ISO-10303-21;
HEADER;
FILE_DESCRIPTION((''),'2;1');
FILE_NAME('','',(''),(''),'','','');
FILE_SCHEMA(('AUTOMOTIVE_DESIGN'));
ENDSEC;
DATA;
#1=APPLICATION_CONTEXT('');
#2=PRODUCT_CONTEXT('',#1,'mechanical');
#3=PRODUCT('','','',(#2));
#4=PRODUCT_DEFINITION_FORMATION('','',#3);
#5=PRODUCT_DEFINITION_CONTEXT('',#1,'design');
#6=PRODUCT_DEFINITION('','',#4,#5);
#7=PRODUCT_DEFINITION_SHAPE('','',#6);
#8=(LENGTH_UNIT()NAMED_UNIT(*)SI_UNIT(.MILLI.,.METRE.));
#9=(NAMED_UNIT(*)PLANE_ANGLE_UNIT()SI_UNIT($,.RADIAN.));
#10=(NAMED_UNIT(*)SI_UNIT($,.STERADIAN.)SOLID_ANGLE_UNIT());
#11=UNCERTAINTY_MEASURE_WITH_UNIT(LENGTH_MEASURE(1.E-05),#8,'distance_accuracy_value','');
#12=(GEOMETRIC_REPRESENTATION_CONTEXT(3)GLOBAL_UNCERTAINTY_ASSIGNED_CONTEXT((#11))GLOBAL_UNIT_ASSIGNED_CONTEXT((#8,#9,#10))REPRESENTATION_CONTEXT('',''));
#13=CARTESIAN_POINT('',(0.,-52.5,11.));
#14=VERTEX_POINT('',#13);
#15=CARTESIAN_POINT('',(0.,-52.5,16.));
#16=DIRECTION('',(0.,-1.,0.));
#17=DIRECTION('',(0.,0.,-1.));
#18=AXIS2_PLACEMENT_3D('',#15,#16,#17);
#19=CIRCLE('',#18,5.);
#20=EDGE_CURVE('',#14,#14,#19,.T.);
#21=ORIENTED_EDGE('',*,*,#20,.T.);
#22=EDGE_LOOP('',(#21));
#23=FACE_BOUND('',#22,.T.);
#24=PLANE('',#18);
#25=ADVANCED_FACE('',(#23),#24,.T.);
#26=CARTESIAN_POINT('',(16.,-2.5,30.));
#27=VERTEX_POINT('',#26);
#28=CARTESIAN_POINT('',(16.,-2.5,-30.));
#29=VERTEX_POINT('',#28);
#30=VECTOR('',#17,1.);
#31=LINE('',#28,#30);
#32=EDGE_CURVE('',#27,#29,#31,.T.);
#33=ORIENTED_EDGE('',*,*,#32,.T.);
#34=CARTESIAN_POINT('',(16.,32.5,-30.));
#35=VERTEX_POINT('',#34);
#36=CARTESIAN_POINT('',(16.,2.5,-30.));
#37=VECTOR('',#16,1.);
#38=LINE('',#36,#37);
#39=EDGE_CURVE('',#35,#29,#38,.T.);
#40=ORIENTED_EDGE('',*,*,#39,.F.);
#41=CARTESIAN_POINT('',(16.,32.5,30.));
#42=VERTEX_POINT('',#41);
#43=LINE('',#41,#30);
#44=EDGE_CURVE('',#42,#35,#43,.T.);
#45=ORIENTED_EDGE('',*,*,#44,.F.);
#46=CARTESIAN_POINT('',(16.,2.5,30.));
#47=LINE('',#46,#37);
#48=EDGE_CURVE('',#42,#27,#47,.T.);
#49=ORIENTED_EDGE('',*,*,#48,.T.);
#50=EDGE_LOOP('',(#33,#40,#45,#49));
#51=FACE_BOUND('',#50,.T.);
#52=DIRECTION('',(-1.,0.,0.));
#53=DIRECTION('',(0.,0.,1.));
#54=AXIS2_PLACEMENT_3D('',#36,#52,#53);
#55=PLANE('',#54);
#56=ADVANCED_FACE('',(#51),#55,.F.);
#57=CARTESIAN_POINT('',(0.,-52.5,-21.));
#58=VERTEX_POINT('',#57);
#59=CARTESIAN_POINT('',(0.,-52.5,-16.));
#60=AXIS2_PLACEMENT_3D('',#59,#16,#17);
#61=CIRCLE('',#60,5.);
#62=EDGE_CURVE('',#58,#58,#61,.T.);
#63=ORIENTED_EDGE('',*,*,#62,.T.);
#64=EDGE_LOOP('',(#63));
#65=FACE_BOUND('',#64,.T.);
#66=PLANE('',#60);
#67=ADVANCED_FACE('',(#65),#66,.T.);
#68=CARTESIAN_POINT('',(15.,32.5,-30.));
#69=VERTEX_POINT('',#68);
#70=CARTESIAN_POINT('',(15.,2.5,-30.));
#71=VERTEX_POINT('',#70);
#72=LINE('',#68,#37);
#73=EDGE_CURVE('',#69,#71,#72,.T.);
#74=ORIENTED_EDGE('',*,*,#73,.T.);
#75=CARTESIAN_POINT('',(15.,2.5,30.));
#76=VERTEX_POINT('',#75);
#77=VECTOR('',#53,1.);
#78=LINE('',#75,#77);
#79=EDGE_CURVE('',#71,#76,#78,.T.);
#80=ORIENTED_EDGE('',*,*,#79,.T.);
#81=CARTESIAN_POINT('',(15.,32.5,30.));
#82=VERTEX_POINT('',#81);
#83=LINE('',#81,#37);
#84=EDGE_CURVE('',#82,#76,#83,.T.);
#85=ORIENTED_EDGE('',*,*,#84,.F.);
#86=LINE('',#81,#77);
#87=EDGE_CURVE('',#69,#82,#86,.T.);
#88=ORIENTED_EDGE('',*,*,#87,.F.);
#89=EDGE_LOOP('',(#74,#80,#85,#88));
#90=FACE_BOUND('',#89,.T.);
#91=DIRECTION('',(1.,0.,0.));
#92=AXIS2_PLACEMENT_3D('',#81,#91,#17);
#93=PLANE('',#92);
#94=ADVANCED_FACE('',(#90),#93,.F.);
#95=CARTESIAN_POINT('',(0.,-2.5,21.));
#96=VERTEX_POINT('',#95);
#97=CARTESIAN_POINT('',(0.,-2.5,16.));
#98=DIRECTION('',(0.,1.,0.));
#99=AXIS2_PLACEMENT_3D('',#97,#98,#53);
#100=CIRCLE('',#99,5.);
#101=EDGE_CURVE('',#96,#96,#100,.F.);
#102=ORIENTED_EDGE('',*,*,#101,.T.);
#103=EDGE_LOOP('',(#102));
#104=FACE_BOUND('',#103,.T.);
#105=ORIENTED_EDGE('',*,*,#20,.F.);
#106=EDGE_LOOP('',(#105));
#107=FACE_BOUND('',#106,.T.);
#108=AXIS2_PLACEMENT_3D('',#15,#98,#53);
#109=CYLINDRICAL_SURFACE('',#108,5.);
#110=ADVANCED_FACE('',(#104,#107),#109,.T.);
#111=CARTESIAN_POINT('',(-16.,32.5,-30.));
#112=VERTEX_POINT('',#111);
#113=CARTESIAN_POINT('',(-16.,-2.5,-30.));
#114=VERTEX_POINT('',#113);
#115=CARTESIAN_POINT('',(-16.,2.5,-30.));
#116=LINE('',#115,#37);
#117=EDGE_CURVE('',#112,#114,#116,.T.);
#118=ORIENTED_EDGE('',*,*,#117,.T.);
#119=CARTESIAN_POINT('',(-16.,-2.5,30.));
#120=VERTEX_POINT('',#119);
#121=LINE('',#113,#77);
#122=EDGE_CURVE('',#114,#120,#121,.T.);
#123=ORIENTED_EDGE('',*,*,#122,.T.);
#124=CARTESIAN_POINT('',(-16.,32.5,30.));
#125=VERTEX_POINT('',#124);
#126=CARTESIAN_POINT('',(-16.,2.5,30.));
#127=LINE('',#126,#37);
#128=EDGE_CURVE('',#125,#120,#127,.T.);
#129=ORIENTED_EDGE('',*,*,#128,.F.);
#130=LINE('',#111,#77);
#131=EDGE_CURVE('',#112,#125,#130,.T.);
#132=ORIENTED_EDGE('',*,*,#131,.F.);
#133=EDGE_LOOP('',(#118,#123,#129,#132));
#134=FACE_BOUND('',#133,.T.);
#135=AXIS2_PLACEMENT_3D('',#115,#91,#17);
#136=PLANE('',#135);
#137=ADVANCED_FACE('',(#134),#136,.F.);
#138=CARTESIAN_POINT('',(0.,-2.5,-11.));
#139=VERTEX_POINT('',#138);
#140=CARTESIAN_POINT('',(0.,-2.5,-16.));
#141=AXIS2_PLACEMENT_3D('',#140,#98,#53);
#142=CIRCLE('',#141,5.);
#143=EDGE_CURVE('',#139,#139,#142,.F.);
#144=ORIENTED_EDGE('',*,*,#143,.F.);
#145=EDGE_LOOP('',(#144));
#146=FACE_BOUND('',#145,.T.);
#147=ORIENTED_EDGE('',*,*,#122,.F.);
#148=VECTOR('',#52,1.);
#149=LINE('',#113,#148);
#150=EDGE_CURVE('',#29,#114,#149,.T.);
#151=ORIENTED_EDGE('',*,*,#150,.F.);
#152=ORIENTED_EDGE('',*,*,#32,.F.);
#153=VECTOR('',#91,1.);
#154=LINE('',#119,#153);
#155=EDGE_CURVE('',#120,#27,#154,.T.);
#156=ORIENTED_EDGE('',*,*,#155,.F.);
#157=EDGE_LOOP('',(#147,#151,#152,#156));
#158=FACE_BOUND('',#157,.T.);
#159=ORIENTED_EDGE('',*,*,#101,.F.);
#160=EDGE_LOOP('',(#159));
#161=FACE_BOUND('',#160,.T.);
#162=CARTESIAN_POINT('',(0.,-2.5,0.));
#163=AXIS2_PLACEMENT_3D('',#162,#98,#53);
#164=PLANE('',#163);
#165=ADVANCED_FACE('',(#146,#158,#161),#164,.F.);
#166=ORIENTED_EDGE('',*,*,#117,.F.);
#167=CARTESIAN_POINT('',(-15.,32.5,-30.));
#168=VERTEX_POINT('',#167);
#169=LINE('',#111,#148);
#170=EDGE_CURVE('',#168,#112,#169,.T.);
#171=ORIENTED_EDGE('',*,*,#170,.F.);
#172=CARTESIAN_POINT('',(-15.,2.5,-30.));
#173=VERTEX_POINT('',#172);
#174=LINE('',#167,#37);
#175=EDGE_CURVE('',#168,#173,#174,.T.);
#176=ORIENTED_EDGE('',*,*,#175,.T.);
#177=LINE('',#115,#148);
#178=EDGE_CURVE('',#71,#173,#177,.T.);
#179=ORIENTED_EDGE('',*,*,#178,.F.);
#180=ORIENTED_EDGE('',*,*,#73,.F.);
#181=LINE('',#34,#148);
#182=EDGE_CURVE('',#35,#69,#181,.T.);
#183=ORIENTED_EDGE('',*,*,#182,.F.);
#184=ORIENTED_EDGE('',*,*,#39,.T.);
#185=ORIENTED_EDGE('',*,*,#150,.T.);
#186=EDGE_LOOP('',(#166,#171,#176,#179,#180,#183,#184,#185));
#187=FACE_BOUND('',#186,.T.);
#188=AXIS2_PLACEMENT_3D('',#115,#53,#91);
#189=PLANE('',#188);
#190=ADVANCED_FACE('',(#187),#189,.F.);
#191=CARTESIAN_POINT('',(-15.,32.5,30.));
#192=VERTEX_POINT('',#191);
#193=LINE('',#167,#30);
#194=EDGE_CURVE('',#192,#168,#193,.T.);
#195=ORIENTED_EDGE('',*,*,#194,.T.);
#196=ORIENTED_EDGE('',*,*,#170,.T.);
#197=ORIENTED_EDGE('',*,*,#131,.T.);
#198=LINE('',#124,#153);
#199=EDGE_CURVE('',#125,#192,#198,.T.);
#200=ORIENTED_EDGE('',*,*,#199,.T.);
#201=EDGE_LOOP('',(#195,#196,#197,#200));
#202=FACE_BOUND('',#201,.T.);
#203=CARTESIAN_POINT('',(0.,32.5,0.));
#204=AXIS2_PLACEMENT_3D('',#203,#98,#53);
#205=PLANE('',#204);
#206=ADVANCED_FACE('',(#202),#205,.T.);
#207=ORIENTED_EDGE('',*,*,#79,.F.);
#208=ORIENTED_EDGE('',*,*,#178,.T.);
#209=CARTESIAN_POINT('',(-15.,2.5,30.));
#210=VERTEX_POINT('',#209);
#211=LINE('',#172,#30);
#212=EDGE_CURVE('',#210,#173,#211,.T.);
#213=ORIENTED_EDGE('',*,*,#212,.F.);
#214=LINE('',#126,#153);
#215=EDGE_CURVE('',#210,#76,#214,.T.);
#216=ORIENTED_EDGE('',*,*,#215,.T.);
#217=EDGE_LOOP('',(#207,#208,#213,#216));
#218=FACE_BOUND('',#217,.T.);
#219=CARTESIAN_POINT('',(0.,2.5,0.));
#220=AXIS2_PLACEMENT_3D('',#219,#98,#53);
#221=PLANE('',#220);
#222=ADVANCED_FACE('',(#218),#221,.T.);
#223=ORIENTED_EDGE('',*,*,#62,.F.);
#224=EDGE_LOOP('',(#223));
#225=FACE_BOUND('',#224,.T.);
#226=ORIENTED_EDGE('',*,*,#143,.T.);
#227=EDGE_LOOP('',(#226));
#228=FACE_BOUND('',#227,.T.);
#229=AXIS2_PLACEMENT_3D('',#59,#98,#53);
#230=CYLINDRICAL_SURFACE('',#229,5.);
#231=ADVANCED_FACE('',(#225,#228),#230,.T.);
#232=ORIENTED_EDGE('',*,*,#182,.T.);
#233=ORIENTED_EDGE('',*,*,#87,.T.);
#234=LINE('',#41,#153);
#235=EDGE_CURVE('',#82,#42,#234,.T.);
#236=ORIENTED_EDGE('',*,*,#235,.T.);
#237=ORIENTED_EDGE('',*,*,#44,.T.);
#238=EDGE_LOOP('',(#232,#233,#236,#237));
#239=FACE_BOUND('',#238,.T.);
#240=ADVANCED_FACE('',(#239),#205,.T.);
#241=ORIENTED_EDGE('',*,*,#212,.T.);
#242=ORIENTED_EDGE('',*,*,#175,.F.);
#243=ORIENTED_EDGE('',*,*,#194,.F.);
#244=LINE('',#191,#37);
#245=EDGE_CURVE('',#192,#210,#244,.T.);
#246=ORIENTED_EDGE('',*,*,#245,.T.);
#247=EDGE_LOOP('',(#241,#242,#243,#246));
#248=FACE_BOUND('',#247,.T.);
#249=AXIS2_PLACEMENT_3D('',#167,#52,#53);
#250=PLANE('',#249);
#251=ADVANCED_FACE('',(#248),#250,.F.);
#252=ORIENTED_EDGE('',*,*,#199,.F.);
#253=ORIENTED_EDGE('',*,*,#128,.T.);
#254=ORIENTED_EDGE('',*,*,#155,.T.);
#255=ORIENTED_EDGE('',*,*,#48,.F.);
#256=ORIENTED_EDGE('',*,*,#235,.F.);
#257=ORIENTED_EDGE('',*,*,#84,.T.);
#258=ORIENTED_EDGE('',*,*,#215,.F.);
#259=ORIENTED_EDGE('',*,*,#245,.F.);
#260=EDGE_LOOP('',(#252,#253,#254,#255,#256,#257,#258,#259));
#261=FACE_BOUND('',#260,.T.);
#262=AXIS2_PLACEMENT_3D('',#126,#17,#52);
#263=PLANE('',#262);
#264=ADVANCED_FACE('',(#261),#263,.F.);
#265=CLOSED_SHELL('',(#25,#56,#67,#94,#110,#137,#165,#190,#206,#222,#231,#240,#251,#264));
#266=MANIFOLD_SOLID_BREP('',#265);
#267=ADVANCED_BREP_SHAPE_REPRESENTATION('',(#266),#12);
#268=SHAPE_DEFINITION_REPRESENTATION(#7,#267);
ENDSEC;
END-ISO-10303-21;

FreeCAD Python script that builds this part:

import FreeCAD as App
import Part
import Sketcher

V = App.Vector

doc = App.newDocument("Part")
body = doc.addObject("PartDesign::Body", "Body")

# Sketch on XZ plane
sketch1 = body.newObject("Sketcher::SketchObject", "Sketch")
sketch1.AttachmentSupport = (doc.getObject("XZ_Plane"), [""])
sketch1.MapMode = "FlatFace"
sketch1.addGeometry([
    Part.LineSegment(V(-16, -30, 0), V(-16, 30, 0)),
    Part.LineSegment(V(-16, 30, 0), V(16, 30, 0)),
    Part.LineSegment(V(16, 30, 0), V(16, -30, 0)),
    Part.LineSegment(V(16, -30, 0), V(-16, -30, 0)),
], False)
sketch1.addConstraint([
    Sketcher.Constraint("Coincident", 0, 2, 1, 1),
    Sketcher.Constraint("Coincident", 1, 2, 2, 1),
    Sketcher.Constraint("Coincident", 2, 2, 3, 1),
    Sketcher.Constraint("Coincident", 3, 2, 0, 1),
    Sketcher.Constraint("Vertical", 0),
    Sketcher.Constraint("Horizontal", 1),
    Sketcher.Constraint("Vertical", 2),
    Sketcher.Constraint("Horizontal", 3),
    Sketcher.Constraint("Symmetric", 0, 2, 2, 2, -1, 1),
    Sketcher.Constraint("DistanceX", 1, 1, 1, 2, 32.0),
    Sketcher.Constraint("DistanceY", 0, 1, 0, 2, 60.0),
])
pad1 = body.newObject("PartDesign::Pad", "Pad")
pad1.Profile = sketch1
pad1.Length = 5
pad1.Midplane = True

# Sketch on XZ plane
sketch2 = body.newObject("Sketcher::SketchObject", "Sketch001")
sketch2.AttachmentSupport = (doc.getObject("XZ_Plane"), [""])
sketch2.MapMode = "FlatFace"
sketch2.AttachmentOffset = App.Placement(V(0, 0, 2.5), App.Rotation())
sketch2.addGeometry([
    Part.Circle(V(0, 16, 0), V(0, 0, 1), 5),
    Part.Circle(V(0, -16, 0), V(0, 0, 1), 5),
], False)
sketch2.addConstraint([
    Sketcher.Constraint("Equal", 0, 1),
    Sketcher.Constraint("Symmetric", 0, 3, 1, 3, -1, 1),
    Sketcher.Constraint("PointOnObject", 0, 3, -2),
    Sketcher.Constraint("Diameter", 0, 10.0),
    Sketcher.Constraint("DistanceY", -1, 1, 0, 3, 16.0),
])
pad2 = body.newObject("PartDesign::Pad", "Pad001")
pad2.Profile = sketch2
pad2.Length = 50

# Sketch on XZ plane
sketch3 = body.newObject("Sketcher::SketchObject", "Sketch002")
sketch3.AttachmentSupport = (doc.getObject("XZ_Plane"), [""])
sketch3.MapMode = "FlatFace"
sketch3.AttachmentOffset = App.Placement(V(0, 0, -2.5), App.Rotation())
sketch3.addGeometry([
    Part.LineSegment(V(-16, -30, 0), V(-16, 30, 0)),  # 0
    Part.LineSegment(V(-16, 30, 0), V(-15, 30, 0)),  # 1
    Part.LineSegment(V(-15, 30, 0), V(-15, -30, 0)),  # 2
    Part.LineSegment(V(-15, -30, 0), V(-16, -30, 0)),  # 3
    Part.LineSegment(V(15, -30, 0), V(15, 30, 0)),  # 4
    Part.LineSegment(V(15, 30, 0), V(16, 30, 0)),  # 5
    Part.LineSegment(V(16, 30, 0), V(16, -30, 0)),  # 6
    Part.LineSegment(V(16, -30, 0), V(15, -30, 0)),  # 7
], False)
sketch3.addConstraint([
    Sketcher.Constraint("Coincident", 0, 2, 1, 1),
    Sketcher.Constraint("Coincident", 1, 2, 2, 1),
    Sketcher.Constraint("Coincident", 2, 2, 3, 1),
    Sketcher.Constraint("Coincident", 3, 2, 0, 1),
    Sketcher.Constraint("Coincident", 4, 2, 5, 1),
    Sketcher.Constraint("Coincident", 5, 2, 6, 1),
    Sketcher.Constraint("Coincident", 6, 2, 7, 1),
    Sketcher.Constraint("Coincident", 7, 2, 4, 1),
    Sketcher.Constraint("Vertical", 0),
    Sketcher.Constraint("Horizontal", 1),
    Sketcher.Constraint("Vertical", 2),
    Sketcher.Constraint("Horizontal", 3),
    Sketcher.Constraint("Vertical", 4),
    Sketcher.Constraint("Horizontal", 5),
    Sketcher.Constraint("Vertical", 6),
    Sketcher.Constraint("Horizontal", 7),
    Sketcher.Constraint("Symmetric", 2, 2, 4, 2, -1, 1),
    Sketcher.Constraint("Symmetric", 0, 2, 6, 2, -1, 1),
    Sketcher.Constraint("Horizontal", 1, 2, 4, 2),
    Sketcher.Constraint("DistanceX", 1, 1, 1, 2, 1.0),
    Sketcher.Constraint("DistanceY", 0, 1, 0, 2, 60.0),
    Sketcher.Constraint("DistanceX", 0, 2, -1, 1, 16.0),
])
pad3 = body.newObject("PartDesign::Pad", "Pad002")
pad3.Profile = sketch3
pad3.Length = 30
pad3.Reversed = True

doc.recompute()
